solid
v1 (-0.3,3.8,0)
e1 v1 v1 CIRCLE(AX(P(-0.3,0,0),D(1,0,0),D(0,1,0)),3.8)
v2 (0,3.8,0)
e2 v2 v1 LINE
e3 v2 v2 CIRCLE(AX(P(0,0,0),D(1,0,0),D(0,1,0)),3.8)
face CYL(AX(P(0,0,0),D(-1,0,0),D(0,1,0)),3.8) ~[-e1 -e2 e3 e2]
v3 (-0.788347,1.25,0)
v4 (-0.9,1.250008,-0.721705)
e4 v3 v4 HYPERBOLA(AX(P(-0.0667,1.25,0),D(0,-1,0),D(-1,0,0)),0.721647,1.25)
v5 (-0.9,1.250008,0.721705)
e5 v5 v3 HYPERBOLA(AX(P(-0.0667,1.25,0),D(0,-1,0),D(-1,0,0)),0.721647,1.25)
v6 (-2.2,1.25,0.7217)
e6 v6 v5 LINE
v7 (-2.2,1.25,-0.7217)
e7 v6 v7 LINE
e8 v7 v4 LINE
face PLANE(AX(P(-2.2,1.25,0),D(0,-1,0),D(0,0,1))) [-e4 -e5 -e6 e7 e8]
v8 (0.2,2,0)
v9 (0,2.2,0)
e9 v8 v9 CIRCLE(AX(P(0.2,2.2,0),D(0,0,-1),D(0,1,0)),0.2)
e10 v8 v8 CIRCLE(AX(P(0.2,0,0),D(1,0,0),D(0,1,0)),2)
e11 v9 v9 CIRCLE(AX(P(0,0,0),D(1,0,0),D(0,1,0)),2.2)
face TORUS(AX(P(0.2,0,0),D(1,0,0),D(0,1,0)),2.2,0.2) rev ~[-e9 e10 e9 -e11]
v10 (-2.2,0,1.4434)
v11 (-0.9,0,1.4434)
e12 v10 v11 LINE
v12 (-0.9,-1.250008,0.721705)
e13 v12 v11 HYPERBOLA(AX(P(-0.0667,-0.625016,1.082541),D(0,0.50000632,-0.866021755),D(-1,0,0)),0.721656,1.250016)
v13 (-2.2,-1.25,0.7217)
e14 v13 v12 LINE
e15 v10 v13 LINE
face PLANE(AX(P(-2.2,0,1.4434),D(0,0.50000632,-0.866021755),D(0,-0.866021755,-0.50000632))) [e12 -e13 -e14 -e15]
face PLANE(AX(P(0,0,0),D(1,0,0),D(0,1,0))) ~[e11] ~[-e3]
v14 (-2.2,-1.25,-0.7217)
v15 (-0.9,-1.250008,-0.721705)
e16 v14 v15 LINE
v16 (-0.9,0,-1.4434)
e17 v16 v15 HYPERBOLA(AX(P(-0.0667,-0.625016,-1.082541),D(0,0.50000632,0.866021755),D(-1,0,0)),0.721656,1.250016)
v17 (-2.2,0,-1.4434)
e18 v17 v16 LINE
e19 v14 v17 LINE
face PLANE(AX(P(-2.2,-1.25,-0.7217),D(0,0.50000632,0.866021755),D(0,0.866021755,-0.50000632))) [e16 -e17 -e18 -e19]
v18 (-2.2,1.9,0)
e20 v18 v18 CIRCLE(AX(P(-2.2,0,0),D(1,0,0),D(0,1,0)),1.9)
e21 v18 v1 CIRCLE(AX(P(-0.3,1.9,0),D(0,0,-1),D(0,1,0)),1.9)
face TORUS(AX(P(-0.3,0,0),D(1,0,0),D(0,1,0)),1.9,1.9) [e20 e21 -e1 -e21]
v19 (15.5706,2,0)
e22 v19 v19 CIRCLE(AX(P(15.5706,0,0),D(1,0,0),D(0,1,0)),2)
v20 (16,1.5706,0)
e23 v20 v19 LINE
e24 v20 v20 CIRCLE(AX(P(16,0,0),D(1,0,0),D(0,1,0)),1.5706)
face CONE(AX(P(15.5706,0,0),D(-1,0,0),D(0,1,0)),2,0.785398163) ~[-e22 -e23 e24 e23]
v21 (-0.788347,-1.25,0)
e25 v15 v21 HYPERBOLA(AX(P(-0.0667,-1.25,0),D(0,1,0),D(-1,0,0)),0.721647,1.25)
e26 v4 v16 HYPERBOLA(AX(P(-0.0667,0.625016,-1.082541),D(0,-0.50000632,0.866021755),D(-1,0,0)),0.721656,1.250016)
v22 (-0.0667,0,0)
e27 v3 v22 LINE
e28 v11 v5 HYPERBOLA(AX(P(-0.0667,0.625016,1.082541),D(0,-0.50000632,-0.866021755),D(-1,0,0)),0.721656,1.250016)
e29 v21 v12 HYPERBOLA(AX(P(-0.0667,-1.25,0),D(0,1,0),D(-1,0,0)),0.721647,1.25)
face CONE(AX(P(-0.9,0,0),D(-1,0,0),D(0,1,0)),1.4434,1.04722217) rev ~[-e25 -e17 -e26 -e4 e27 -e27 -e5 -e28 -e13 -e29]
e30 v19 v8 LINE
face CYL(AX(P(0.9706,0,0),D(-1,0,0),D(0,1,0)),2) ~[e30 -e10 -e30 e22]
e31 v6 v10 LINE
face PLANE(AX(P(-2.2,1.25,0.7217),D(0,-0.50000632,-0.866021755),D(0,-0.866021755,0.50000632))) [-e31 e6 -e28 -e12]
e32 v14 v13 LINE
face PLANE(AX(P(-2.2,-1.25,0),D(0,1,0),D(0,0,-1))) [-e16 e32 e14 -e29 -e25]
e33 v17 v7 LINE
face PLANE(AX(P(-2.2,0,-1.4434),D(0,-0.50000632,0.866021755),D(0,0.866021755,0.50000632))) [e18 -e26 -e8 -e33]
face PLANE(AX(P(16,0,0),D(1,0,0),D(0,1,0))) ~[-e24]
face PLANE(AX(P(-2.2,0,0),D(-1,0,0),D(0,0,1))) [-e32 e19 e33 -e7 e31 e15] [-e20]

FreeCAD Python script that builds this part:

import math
import FreeCAD as App
import Part
import Sketcher
from FreeCAD import Vector
Q = App.Units.Quantity


def edges_at(feature, points):
    """Names of the edges that pass closest to the given points."""
    edges = feature.Shape.Edges
    near = lambda p: min(range(len(edges)), key=lambda i: edges[i].distToShape(Part.Vertex(*p))[0])
    return sorted({f"Edge{near(p) + 1}" for p in points})

doc = App.newDocument("Part")
body = doc.addObject("PartDesign::Body", "Body")

# Sketch on XY plane
sketch1 = doc.addObject("Sketcher::SketchObject", "Sketch")
body.addObject(sketch1)
sketch1.AttachmentSupport = (doc.XY_Plane, [""])
sketch1.MapMode = "FlatFace"
sketch1.addGeometry(Part.LineSegment(Vector(-0.9, 1.4434, 0), Vector(-0.0667, 0, 0)), False)
sketch1.addGeometry(Part.LineSegment(Vector(-0.0667, 0, 0), Vector(16, 0, 0)), False)
sketch1.addGeometry(Part.LineSegment(Vector(16, 0, 0), Vector(16, 2, 0)), False)
sketch1.addGeometry(Part.LineSegment(Vector(16, 2, 0), Vector(0, 2, 0)), False)
sketch1.addGeometry(Part.LineSegment(Vector(0, 2, 0), Vector(0, 3.8, 0)), False)
sketch1.addGeometry(Part.LineSegment(Vector(0, 3.8, 0), Vector(-2.2, 3.8, 0)), False)
sketch1.addGeometry(Part.LineSegment(Vector(-2.2, 3.8, 0), Vector(-2.2, 1.4434, 0)), False)
sketch1.addGeometry(Part.LineSegment(Vector(-2.2, 1.4434, 0), Vector(-0.9, 1.4434, 0)), False)
sketch1.addConstraint(Sketcher.Constraint("Coincident", 0, 2, 1, 1))
sketch1.addConstraint(Sketcher.Constraint("Coincident", 1, 2, 2, 1))
sketch1.addConstraint(Sketcher.Constraint("Coincident", 2, 2, 3, 1))
sketch1.addConstraint(Sketcher.Constraint("Coincident", 3, 2, 4, 1))
sketch1.addConstraint(Sketcher.Constraint("Coincident", 4, 2, 5, 1))
sketch1.addConstraint(Sketcher.Constraint("Coincident", 5, 2, 6, 1))
sketch1.addConstraint(Sketcher.Constraint("Coincident", 6, 2, 7, 1))
sketch1.addConstraint(Sketcher.Constraint("Coincident", 7, 2, 0, 1))
sketch1.addConstraint(Sketcher.Constraint("Horizontal", 1))
sketch1.addConstraint(Sketcher.Constraint("Vertical", 2))
sketch1.addConstraint(Sketcher.Constraint("Horizontal", 3))
sketch1.addConstraint(Sketcher.Constraint("Vertical", 4))
sketch1.addConstraint(Sketcher.Constraint("Horizontal", 5))
sketch1.addConstraint(Sketcher.Constraint("Vertical", 6))
sketch1.addConstraint(Sketcher.Constraint("Horizontal", 7))
sketch1.addConstraint(Sketcher.Constraint("PointOnObject", 0, 2, -1))
sketch1.addConstraint(Sketcher.Constraint("PointOnObject", 3, 2, -2))
sketch1.addConstraint(Sketcher.Constraint("DistanceX", 3, 2, 3, 1, Q("16 mm")))
sketch1.addConstraint(Sketcher.Constraint("DistanceX", 5, 2, 5, 1, Q("2.2 mm")))
sketch1.addConstraint(Sketcher.Constraint("DistanceX", 7, 1, 7, 2, Q("1.3 mm")))
sketch1.addConstraint(Sketcher.Constraint("DistanceY", 2, 1, 2, 2, Q("2 mm")))
sketch1.addConstraint(Sketcher.Constraint("DistanceY", 4, 1, 4, 2, Q("1.8 mm")))
sketch1.addConstraint(Sketcher.Constraint("DistanceX", 1, 1, 1, 2, Q("16.0667 mm")))
sketch1.addConstraint(Sketcher.Constraint("DistanceY", 6, 2, 6, 1, Q("2.3566 mm")))
revolution = doc.addObject("PartDesign::Revolution", "Revolution")
body.addObject(revolution)
revolution.Profile = sketch1
revolution.ReferenceAxis = (sketch1, ["H_Axis"])
revolution.Angle = 360

# Sketch on YZ plane
sketch2 = doc.addObject("Sketcher::SketchObject", "Sketch001")
body.addObject(sketch2)
sketch2.AttachmentSupport = (doc.YZ_Plane, [""])
sketch2.MapMode = "FlatFace"
sketch2.AttachmentOffset = App.Placement(Vector(0, 0, -2.2), App.Rotation())
sketch2.addGeometry(Part.LineSegment(Vector(1.25, 0.7217, 0), Vector(0, 1.4434, 0)), False)
sketch2.addGeometry(Part.ArcOfCircle(Part.Circle(Vector(0, 0, 0), Vector(0, 0, 1), 1.4434), math.radians(30.000418), math.radians(90)), False)
sketch2.addGeometry(Part.ArcOfCircle(Part.Circle(Vector(0, 0, 0), Vector(0, 0, 1), 1.4434), math.radians(90), math.radians(149.999582)), False)
sketch2.addGeometry(Part.LineSegment(Vector(0, 1.4434, 0), Vector(-1.25, 0.7217, 0)), False)
sketch2.addGeometry(Part.ArcOfCircle(Part.Circle(Vector(0, 0, 0), Vector(0, 0, 1), 1.4434), math.radians(-30.000418), math.radians(30.000418)), False)
sketch2.addGeometry(Part.LineSegment(Vector(1.25, 0.7217, 0), Vector(1.25, -0.7217, 0)), False)
sketch2.addGeometry(Part.LineSegment(Vector(-1.25, 0.7217, 0), Vector(-1.25, -0.7217, 0)), False)
sketch2.addGeometry(Part.ArcOfCircle(Part.Circle(Vector(0, 0, 0), Vector(0, 0, 1), 1.4434), math.radians(149.999582), math.radians(210.000418)), False)
sketch2.addGeometry(Part.LineSegment(Vector(-1.25, -0.7217, 0), Vector(0, -1.4434, 0)), False)
sketch2.addGeometry(Part.ArcOfCircle(Part.Circle(Vector(0, 0, 0), Vector(0, 0, 1), 1.4434), math.radians(-149.999582), math.radians(-90)), False)
sketch2.addGeometry(Part.ArcOfCircle(Part.Circle(Vector(0, 0, 0), Vector(0, 0, 1), 1.4434), math.radians(-90), math.radians(-30.000418)), False)
sketch2.addGeometry(Part.LineSegment(Vector(0, -1.4434, 0), Vector(1.25, -0.7217, 0)), False)
sketch2.addConstraint(Sketcher.Constraint("Coincident", 0, 1, 1, 1))
sketch2.addConstraint(Sketcher.Constraint("Coincident", 1, 2, 0, 2))
sketch2.addConstraint(Sketcher.Constraint("Coincident", 2, 1, 3, 1))
sketch2.addConstraint(Sketcher.Constraint("Coincident", 3, 2, 2, 2))
sketch2.addConstraint(Sketcher.Constraint("Coincident", 4, 1, 5, 2))
sketch2.addConstraint(Sketcher.Constraint("Coincident", 5, 1, 4, 2))
sketch2.addConstraint(Sketcher.Constraint("Coincident", 6, 1, 7, 1))
sketch2.addConstraint(Sketcher.Constraint("Coincident", 7, 2, 6, 2))
sketch2.addConstraint(Sketcher.Constraint("Coincident", 8, 1, 9, 1))
sketch2.addConstraint(Sketcher.Constraint("Coincident", 9, 2, 8, 2))
sketch2.addConstraint(Sketcher.Constraint("Coincident", 10, 1, 11, 1))
sketch2.addConstraint(Sketcher.Constraint("Coincident", 11, 2, 10, 2))
sketch2.addConstraint(Sketcher.Constraint("Vertical", 5))
sketch2.addConstraint(Sketcher.Constraint("Vertical", 6))
sketch2.addConstraint(Sketcher.Constraint("Coincident", 1, 3, -1, 1))
sketch2.addConstraint(Sketcher.Constraint("Coincident", 2, 3, -1, 1))
sketch2.addConstraint(Sketcher.Constraint("Coincident", 4, 3, -1, 1))
sketch2.addConstraint(Sketcher.Constraint("Coincident", 7, 3, -1, 1))
sketch2.addConstraint(Sketcher.Constraint("Coincident", 9, 3, -1, 1))
sketch2.addConstraint(Sketcher.Constraint("Coincident", 10, 3, -1, 1))
sketch2.addConstraint(Sketcher.Constraint("Coincident", 2, 1, 1, 2))
sketch2.addConstraint(Sketcher.Constraint("Coincident", 5, 1, 0, 1))
sketch2.addConstraint(Sketcher.Constraint("Coincident", 6, 1, 3, 2))
sketch2.addConstraint(Sketcher.Constraint("Coincident", 8, 1, 7, 2))
sketch2.addConstraint(Sketcher.Constraint("Coincident", 10, 1, 9, 2))
sketch2.addConstraint(Sketcher.Constraint("PointOnObject", 1, 2, -2))
sketch2.addConstraint(Sketcher.Constraint("PointOnObject", 9, 2, -2))
sketch2.addConstraint(Sketcher.Constraint("Parallel", 0, 8))
sketch2.addConstraint(Sketcher.Constraint("Parallel", 3, 11))
sketch2.addConstraint(Sketcher.Constraint("Angle", 0, Q("149.9996 deg")))
sketch2.addConstraint(Sketcher.Constraint("Radius", 1, Q("1.4434 mm")))
pad1 = doc.addObject("PartDesign::Pad", "Pad")
body.addObject(pad1)
pad1.Profile = sketch2
pad1.Type = "UpToFirst"
doc.recompute()

fillet = doc.addObject("PartDesign::Fillet", "Fillet")
body.addObject(fillet)
fillet.Base = (pad1, edges_at(pad1, [(-2.2, -3.8, 0)]))
fillet.Radius = 1.9
doc.recompute()

chamfer = doc.addObject("PartDesign::Chamfer", "Chamfer")
body.addObject(chamfer)
chamfer.Base = (fillet, edges_at(fillet, [(16, -2, 0)]))
chamfer.ChamferType = "Two distances"
chamfer.Size = 0.4294
chamfer.Size2 = 0.4294
doc.recompute()

fillet2 = doc.addObject("PartDesign::Fillet", "Fillet001")
body.addObject(fillet2)
fillet2.Base = (chamfer, edges_at(chamfer, [(0, -2, 0)]))
fillet2.Radius = 0.2

doc.recompute()
